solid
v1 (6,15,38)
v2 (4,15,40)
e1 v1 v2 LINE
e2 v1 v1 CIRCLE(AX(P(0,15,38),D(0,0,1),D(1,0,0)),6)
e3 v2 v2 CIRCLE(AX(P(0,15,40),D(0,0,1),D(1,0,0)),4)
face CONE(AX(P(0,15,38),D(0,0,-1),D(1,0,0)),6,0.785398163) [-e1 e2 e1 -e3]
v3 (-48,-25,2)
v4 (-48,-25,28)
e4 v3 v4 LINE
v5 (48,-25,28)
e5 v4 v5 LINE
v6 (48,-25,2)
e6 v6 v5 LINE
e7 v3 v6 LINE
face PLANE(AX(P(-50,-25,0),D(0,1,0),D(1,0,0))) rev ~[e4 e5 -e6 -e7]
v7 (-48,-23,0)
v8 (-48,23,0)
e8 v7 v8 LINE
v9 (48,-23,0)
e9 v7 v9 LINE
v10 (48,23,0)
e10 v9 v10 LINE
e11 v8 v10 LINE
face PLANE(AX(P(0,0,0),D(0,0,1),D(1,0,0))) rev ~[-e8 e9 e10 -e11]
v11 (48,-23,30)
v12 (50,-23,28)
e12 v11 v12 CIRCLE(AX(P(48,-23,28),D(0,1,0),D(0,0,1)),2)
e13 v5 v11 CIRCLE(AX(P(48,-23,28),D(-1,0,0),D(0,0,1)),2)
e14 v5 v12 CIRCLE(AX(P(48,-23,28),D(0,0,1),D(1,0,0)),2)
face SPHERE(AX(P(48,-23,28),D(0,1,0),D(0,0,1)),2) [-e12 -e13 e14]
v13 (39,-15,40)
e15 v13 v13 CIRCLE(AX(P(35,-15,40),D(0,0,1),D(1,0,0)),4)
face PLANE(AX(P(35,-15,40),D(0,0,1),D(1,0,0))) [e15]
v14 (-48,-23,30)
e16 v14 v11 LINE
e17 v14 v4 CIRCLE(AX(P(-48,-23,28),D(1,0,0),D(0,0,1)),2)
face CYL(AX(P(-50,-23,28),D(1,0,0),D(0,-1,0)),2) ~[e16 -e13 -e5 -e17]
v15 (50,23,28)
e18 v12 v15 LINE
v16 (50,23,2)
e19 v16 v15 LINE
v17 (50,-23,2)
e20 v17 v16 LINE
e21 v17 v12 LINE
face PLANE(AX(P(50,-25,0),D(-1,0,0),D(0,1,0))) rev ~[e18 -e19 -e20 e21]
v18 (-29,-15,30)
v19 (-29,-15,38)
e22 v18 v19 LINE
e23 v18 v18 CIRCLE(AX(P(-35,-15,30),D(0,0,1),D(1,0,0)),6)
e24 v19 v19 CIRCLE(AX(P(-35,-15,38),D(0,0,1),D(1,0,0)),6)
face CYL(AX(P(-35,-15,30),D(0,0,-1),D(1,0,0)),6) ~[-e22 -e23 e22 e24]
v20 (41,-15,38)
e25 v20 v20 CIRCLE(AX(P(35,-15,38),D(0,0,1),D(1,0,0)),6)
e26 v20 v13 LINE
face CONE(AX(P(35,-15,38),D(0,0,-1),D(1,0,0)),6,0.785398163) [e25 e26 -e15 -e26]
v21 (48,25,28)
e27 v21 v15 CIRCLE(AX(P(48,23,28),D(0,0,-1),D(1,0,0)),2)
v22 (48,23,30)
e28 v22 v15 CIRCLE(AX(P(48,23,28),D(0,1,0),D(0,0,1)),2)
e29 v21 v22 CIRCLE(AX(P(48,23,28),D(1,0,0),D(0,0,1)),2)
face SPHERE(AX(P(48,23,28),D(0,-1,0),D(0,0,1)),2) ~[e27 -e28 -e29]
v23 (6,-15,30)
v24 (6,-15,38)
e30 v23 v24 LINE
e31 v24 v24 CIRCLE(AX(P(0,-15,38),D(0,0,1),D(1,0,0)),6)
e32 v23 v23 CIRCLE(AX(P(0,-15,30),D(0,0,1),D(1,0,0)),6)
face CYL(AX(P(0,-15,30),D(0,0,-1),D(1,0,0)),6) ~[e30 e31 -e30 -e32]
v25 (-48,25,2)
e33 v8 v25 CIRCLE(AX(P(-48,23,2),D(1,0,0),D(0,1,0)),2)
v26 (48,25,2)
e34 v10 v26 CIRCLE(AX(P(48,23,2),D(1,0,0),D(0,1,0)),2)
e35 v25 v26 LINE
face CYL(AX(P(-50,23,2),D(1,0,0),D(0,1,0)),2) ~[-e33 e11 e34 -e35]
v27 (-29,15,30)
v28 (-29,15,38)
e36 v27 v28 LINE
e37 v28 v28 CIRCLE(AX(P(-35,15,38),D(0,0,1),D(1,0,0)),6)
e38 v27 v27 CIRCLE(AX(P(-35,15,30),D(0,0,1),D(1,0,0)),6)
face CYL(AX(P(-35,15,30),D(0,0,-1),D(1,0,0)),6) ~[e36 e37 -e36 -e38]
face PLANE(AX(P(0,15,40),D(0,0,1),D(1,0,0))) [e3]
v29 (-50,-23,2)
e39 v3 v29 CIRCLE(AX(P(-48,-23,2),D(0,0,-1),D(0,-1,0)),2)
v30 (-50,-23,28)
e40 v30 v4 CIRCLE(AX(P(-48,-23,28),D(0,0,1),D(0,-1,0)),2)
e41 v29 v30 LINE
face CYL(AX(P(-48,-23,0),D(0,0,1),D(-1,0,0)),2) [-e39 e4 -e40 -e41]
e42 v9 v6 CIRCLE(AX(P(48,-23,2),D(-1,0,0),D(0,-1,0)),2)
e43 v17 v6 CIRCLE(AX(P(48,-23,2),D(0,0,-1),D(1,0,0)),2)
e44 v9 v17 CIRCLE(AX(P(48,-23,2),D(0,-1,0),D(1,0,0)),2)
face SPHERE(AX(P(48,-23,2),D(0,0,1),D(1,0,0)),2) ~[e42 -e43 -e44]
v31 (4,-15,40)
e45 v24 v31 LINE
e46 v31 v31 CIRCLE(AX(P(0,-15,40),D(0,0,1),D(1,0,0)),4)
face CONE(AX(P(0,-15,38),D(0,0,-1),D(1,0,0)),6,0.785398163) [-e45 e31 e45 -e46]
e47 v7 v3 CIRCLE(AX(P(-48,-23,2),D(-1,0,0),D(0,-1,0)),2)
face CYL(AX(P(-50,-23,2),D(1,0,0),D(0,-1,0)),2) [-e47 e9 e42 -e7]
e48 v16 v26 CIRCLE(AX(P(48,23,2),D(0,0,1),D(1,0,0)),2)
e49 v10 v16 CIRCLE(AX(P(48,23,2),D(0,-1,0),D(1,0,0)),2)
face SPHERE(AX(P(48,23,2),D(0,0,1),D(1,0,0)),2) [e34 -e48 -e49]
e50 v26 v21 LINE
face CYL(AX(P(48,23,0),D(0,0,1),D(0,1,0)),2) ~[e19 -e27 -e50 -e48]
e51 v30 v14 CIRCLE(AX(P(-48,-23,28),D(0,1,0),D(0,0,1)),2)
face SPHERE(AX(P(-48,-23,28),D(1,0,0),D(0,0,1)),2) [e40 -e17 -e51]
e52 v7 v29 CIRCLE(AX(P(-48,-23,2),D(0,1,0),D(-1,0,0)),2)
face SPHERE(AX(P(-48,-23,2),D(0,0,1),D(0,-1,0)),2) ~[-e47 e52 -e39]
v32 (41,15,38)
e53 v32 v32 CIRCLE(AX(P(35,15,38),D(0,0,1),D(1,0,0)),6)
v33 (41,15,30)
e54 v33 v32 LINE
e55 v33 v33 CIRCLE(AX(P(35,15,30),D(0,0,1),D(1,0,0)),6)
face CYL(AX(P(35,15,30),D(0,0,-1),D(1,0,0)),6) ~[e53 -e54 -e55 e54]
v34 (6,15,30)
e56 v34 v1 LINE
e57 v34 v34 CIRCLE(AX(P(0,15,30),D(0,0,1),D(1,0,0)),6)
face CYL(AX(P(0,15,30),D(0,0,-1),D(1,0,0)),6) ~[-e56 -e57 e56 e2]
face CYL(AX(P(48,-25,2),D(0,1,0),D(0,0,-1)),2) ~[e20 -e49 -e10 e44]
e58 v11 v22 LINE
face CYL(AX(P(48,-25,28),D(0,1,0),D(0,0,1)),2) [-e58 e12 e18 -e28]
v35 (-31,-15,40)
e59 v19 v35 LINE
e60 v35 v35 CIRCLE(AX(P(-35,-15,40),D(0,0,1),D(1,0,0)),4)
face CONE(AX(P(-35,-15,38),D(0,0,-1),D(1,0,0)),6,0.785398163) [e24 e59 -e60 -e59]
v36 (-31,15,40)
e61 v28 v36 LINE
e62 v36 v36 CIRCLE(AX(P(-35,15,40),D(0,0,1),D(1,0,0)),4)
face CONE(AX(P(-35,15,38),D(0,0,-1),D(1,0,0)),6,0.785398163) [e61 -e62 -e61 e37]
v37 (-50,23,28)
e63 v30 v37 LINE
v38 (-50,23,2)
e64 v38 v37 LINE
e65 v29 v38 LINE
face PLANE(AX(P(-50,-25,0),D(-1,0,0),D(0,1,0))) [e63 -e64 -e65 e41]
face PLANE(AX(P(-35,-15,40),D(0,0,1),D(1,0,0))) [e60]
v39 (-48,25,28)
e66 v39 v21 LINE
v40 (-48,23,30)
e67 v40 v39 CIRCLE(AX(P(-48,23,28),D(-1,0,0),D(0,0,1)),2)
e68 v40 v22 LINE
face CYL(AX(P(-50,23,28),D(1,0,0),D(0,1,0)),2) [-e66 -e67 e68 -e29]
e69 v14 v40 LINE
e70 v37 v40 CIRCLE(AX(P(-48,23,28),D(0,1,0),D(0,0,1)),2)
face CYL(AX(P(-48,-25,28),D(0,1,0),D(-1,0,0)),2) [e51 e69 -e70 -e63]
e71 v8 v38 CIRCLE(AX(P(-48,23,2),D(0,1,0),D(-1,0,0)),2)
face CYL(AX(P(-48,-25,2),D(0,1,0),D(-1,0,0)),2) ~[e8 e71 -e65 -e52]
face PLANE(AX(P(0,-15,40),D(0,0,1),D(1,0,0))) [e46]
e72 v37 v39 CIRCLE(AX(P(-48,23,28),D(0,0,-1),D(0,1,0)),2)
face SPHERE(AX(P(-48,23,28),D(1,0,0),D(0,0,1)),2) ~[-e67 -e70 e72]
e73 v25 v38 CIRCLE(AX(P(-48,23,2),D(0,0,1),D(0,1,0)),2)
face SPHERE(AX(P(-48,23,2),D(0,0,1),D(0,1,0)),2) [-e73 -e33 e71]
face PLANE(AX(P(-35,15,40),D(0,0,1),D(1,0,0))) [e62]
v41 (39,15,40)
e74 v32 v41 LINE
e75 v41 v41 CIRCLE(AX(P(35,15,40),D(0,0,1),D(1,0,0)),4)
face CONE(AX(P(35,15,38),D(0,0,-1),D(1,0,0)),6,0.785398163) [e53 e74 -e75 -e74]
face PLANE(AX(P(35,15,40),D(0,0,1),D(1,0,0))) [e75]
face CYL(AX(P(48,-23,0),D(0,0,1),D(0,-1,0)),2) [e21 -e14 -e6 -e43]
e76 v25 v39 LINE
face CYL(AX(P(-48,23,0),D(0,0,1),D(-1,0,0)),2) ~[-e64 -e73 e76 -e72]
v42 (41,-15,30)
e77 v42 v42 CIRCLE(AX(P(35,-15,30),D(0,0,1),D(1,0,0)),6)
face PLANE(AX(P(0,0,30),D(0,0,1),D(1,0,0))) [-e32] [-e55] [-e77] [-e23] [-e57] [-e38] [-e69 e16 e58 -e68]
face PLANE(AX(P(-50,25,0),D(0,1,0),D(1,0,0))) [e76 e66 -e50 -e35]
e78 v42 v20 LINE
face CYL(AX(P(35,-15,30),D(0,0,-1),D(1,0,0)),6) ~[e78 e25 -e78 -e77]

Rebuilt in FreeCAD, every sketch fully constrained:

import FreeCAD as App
import Part
import Sketcher

V = App.Vector
Q = App.Units.Quantity


def edges_at(feature, points):
    """Names of the edges that pass closest to the given points."""
    edges = feature.Shape.Edges
    near = lambda p: min(range(len(edges)), key=lambda i: edges[i].distToShape(Part.Vertex(*p))[0])
    return sorted({f"Edge{near(p) + 1}" for p in points})


def add_polygon(sketch, points):
    """Adds a closed chain of lines whose ends are joined by coincident constraints."""
    first, n = sketch.GeometryCount, len(points)
    for a, b in zip(points, points[1:] + points[:1]):
        sketch.addGeometry(Part.LineSegment(App.Vector(*a, 0), App.Vector(*b, 0)), False)
    for i in range(n):
        sketch.addConstraint(Sketcher.Constraint("Coincident", first + i, 2, first + (i + 1) % n, 1))

doc = App.newDocument("Part")
body = doc.addObject("PartDesign::Body", "Body")

# Sketch on XY plane
sketch1 = body.newObject("Sketcher::SketchObject", "Sketch")
sketch1.AttachmentSupport = (doc.getObject("XY_Plane"), [""])
sketch1.MapMode = "FlatFace"
add_polygon(sketch1, [(-50, 25), (-50, -25), (50, -25), (50, 25)])  # lines 0-3
sketch1.addConstraint([
    Sketcher.Constraint("Vertical", 0),
    Sketcher.Constraint("Horizontal", 1),
    Sketcher.Constraint("Vertical", 2),
    Sketcher.Constraint("Horizontal", 3),
    Sketcher.Constraint("Symmetric", 0, 2, 2, 2, -1, 1),
    Sketcher.Constraint("DistanceX", 1, 1, 1, 2, Q("100 mm")),
    Sketcher.Constraint("DistanceY", 0, 2, 0, 1, Q("50 mm")),
])
pad1 = body.newObject("PartDesign::Pad", "Pad")
pad1.Profile = sketch1
pad1.Length = 30

# Sketch on XY plane
sketch2 = body.newObject("Sketcher::SketchObject", "Sketch001")
sketch2.AttachmentSupport = (doc.getObject("XY_Plane"), [""])
sketch2.MapMode = "FlatFace"
sketch2.AttachmentOffset = App.Placement(V(0, 0, 30), App.Rotation())
sketch2.addGeometry([
    Part.Circle(V(35, 15, 0), V(0, 0, 1), 6),  # 0
    Part.Circle(V(35, -15, 0), V(0, 0, 1), 6),  # 1
    Part.Circle(V(0, -15, 0), V(0, 0, 1), 6),  # 2
    Part.Circle(V(0, 15, 0), V(0, 0, 1), 6),  # 3
    Part.Circle(V(-35, 15, 0), V(0, 0, 1), 6),  # 4
    Part.Circle(V(-35, -15, 0), V(0, 0, 1), 6),  # 5
], False)
sketch2.addConstraint([
    Sketcher.Constraint("Equal", 0, 1),
    Sketcher.Constraint("Equal", 1, 2),
    Sketcher.Constraint("Equal", 2, 3),
    Sketcher.Constraint("Equal", 3, 4),
    Sketcher.Constraint("Equal", 4, 5),
    Sketcher.Constraint("Symmetric", 2, 3, 3, 3, -1, 1),
    Sketcher.Constraint("Symmetric", 1, 3, 4, 3, -1, 1),
    Sketcher.Constraint("Symmetric", 0, 3, 5, 3, -1, 1),
    Sketcher.Constraint("Symmetric", 0, 3, 4, 3, -2),
    Sketcher.Constraint("PointOnObject", 2, 3, -2),
    Sketcher.Constraint("Horizontal", 1, 3, 2, 3),
    Sketcher.Constraint("Diameter", 0, Q("12 mm")),
    Sketcher.Constraint("DistanceX", -1, 1, 0, 3, Q("35 mm")),
    Sketcher.Constraint("DistanceY", -1, 1, 0, 3, Q("15 mm")),
])
pad2 = body.newObject("PartDesign::Pad", "Pad001")
pad2.Profile = sketch2
pad2.Length = 10
doc.recompute()

fillet = body.newObject("PartDesign::Fillet", "Fillet")
fillet.Base = (pad2, edges_at(pad2, [
    (50, 0, 30),
    (0, -25, 30),
    (0, 25, 30),
    (-50, 0, 30),
    (50, -25, 15),
    (50, 25, 15),
    (50, 0, 0),
    (-50, -25, 15),
    (0, -25, 0),
    (-50, 25, 15),
    (0, 25, 0),
    (-50, 0, 0),
]))
fillet.Radius = 2
doc.recompute()

chamfer = body.newObject("PartDesign::Chamfer", "Chamfer")
chamfer.Base = (fillet, edges_at(fillet, [
    (-41, 15, 40),
    (-41, -15, 40),
    (-6, -15, 40),
    (-6, 15, 40),
    (29, 15, 40),
    (29, -15, 40),
]))
chamfer.Size = 2

# Sketch on XY plane
sketch3 = body.newObject("Sketcher::SketchObject", "Sketch002")
sketch3.AttachmentSupport = (doc.getObject("XY_Plane"), [""])
sketch3.MapMode = "FlatFace"
sketch3.AttachmentOffset = App.Placement(V(0, 0, 40), App.Rotation())
sketch3.addGeometry(Part.Circle(V(-35, -15, 0), V(0, 0, 1), 4), False)
sketch3.addConstraint([
    Sketcher.Constraint("Diameter", 0, Q("8 mm")),
    Sketcher.Constraint("DistanceX", 0, 3, -1, 1, Q("35 mm")),
    Sketcher.Constraint("DistanceY", 0, 3, -1, 1, Q("15 mm")),
])
pad3 = body.newObject("PartDesign::Pad", "Pad002")
pad3.Profile = sketch3
pad3.Length = 5
pad3.Reversed = True

doc.recompute()
